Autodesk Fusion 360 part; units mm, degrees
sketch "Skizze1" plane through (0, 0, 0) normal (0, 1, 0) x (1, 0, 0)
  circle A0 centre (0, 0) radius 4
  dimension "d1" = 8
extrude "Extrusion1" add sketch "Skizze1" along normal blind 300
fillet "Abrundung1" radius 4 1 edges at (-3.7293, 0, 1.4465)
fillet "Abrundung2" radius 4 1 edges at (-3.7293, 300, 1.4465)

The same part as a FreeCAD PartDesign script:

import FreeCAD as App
import Part
import Sketcher
from FreeCAD import Vector


def edges_at(feature, points):
    """Names of the edges that pass closest to the given points."""
    edges = feature.Shape.Edges
    near = lambda p: min(range(len(edges)), key=lambda i: edges[i].distToShape(Part.Vertex(*p))[0])
    return sorted({f"Edge{near(p) + 1}" for p in points})

doc = App.newDocument("Part")
body = doc.addObject("PartDesign::Body", "Body")

sketch1 = body.newObject("Sketcher::SketchObject", "Sketch")
sketch1.AttachmentSupport = (doc.getObject("XZ_Plane"), [""])
sketch1.MapMode = "FlatFace"
sketch1.addGeometry(Part.Circle(Vector(0, 0, 0), Vector(0, 0, 1), 4), False)
sketch1.addConstraint([
    Sketcher.Constraint("Coincident", 0, 3, -1, 1),
    Sketcher.Constraint("Diameter", 0, 8.0),
])
pad1 = body.newObject("PartDesign::Pad", "Pad")
pad1.Profile = sketch1
pad1.Length = 300
pad1.Reversed = True
doc.recompute()

fillet = body.newObject("PartDesign::Fillet", "Fillet")
fillet.Base = (pad1, edges_at(pad1, [(-3.729, 0, 1.446)]))
fillet.Radius = 4
doc.recompute()

fillet2 = body.newObject("PartDesign::Fillet", "Fillet001")
fillet2.Base = (fillet, edges_at(fillet, [(-3.729, 300, 1.446)]))
fillet2.Radius = 4

doc.recompute()
